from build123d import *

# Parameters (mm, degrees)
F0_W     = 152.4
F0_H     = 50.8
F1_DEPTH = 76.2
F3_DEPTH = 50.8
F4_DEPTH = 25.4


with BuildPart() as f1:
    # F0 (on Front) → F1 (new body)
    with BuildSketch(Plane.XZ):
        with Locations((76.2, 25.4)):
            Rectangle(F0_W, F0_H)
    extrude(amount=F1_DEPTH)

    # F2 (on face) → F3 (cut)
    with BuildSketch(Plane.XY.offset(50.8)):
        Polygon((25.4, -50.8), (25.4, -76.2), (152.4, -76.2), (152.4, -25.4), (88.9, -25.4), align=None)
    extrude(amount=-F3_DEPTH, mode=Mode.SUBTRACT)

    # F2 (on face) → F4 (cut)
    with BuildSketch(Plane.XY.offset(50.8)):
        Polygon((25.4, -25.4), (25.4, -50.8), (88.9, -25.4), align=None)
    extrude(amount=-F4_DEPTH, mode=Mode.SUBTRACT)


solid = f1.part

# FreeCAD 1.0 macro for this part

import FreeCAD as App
import Part
import Sketcher
Q = App.Units.Quantity


def add_polygon(sketch, points):
    """Adds a closed chain of lines whose ends are joined by coincident constraints."""
    first, n = sketch.GeometryCount, len(points)
    for a, b in zip(points, points[1:] + points[:1]):
        sketch.addGeometry(Part.LineSegment(App.Vector(*a, 0), App.Vector(*b, 0)), False)
    for i in range(n):
        sketch.addConstraint(Sketcher.Constraint("Coincident", first + i, 2, first + (i + 1) % n, 1))

doc = App.newDocument("Part")
body = doc.addObject("PartDesign::Body", "Body")

# Sketch on XZ plane
sketch1 = body.newObject("Sketcher::SketchObject", "Sketch")
sketch1.AttachmentSupport = (doc.getObject("XZ_Plane"), [""])
sketch1.MapMode = "FlatFace"
add_polygon(sketch1, [(0, 50.8), (0, 0), (152.4, 0), (152.4, 50.8)])  # lines 0-3
sketch1.addConstraint(Sketcher.Constraint("Vertical", 0))
sketch1.addConstraint(Sketcher.Constraint("Horizontal", 1))
sketch1.addConstraint(Sketcher.Constraint("Vertical", 2))
sketch1.addConstraint(Sketcher.Constraint("Horizontal", 3))
sketch1.addConstraint(Sketcher.Constraint("Coincident", 0, 2, -1, 1))
sketch1.addConstraint(Sketcher.Constraint("DistanceX", 1, 1, 1, 2, Q("6 in")))
sketch1.addConstraint(Sketcher.Constraint("DistanceY", 0, 2, 0, 1, Q("2 in")))
pad1 = body.newObject("PartDesign::Pad", "Pad")
pad1.Profile = sketch1
pad1.Length = Q("3 in")

# Sketch on XY plane
sketch2 = body.newObject("Sketcher::SketchObject", "Sketch001")
sketch2.AttachmentSupport = (doc.getObject("XY_Plane"), [""])
sketch2.MapMode = "FlatFace"
sketch2.AttachmentOffset = App.Placement(App.Vector(0, 0, 2 * 25.4), App.Rotation())
add_polygon(sketch2, [(25.4, -50.8), (25.4, -76.2), (152.4, -76.2), (152.4, -25.4), (88.9, -25.4)])  # lines 0-4
sketch2.addConstraint(Sketcher.Constraint("Vertical", 0))
sketch2.addConstraint(Sketcher.Constraint("Horizontal", 1))
sketch2.addConstraint(Sketcher.Constraint("Vertical", 2))
sketch2.addConstraint(Sketcher.Constraint("Horizontal", 3))
sketch2.addConstraint(Sketcher.Constraint("DistanceX", 1, 1, 1, 2, Q("5 in")))
sketch2.addConstraint(Sketcher.Constraint("DistanceY", 0, 2, 0, 1, Q("1 in")))
sketch2.addConstraint(Sketcher.Constraint("DistanceY", 2, 1, 2, 2, Q("2 in")))
sketch2.addConstraint(Sketcher.Constraint("DistanceX", 3, 2, 3, 1, Q("2.5 in")))
sketch2.addConstraint(Sketcher.Constraint("DistanceX", -1, 1, 0, 2, Q("1 in")))
sketch2.addConstraint(Sketcher.Constraint("DistanceY", 0, 2, -1, 1, Q("3 in")))
pocket1 = body.newObject("PartDesign::Pocket", "Pocket")
pocket1.Profile = sketch2
pocket1.Length = Q("2 in")

# Sketch on XY plane
sketch3 = body.newObject("Sketcher::SketchObject", "Sketch002")
sketch3.AttachmentSupport = (doc.getObject("XY_Plane"), [""])
sketch3.MapMode = "FlatFace"
sketch3.AttachmentOffset = App.Placement(App.Vector(0, 0, 2 * 25.4), App.Rotation())
add_polygon(sketch3, [(25.4, -25.4), (25.4, -50.8), (88.9, -25.4)])  # lines 0-2
sketch3.addConstraint(Sketcher.Constraint("Vertical", 0))
sketch3.addConstraint(Sketcher.Constraint("Horizontal", 2))
sketch3.addConstraint(Sketcher.Constraint("DistanceY", 0, 2, 0, 1, Q("1 in")))
sketch3.addConstraint(Sketcher.Constraint("DistanceX", 2, 2, 2, 1, Q("2.5 in")))
sketch3.addConstraint(Sketcher.Constraint("DistanceX", -1, 1, 0, 2, Q("1 in")))
sketch3.addConstraint(Sketcher.Constraint("DistanceY", 0, 2, -1, 1, Q("2 in")))
pocket2 = body.newObject("PartDesign::Pocket", "Pocket001")
pocket2.Profile = sketch3
pocket2.Length = Q("1 in")

doc.recompute()
